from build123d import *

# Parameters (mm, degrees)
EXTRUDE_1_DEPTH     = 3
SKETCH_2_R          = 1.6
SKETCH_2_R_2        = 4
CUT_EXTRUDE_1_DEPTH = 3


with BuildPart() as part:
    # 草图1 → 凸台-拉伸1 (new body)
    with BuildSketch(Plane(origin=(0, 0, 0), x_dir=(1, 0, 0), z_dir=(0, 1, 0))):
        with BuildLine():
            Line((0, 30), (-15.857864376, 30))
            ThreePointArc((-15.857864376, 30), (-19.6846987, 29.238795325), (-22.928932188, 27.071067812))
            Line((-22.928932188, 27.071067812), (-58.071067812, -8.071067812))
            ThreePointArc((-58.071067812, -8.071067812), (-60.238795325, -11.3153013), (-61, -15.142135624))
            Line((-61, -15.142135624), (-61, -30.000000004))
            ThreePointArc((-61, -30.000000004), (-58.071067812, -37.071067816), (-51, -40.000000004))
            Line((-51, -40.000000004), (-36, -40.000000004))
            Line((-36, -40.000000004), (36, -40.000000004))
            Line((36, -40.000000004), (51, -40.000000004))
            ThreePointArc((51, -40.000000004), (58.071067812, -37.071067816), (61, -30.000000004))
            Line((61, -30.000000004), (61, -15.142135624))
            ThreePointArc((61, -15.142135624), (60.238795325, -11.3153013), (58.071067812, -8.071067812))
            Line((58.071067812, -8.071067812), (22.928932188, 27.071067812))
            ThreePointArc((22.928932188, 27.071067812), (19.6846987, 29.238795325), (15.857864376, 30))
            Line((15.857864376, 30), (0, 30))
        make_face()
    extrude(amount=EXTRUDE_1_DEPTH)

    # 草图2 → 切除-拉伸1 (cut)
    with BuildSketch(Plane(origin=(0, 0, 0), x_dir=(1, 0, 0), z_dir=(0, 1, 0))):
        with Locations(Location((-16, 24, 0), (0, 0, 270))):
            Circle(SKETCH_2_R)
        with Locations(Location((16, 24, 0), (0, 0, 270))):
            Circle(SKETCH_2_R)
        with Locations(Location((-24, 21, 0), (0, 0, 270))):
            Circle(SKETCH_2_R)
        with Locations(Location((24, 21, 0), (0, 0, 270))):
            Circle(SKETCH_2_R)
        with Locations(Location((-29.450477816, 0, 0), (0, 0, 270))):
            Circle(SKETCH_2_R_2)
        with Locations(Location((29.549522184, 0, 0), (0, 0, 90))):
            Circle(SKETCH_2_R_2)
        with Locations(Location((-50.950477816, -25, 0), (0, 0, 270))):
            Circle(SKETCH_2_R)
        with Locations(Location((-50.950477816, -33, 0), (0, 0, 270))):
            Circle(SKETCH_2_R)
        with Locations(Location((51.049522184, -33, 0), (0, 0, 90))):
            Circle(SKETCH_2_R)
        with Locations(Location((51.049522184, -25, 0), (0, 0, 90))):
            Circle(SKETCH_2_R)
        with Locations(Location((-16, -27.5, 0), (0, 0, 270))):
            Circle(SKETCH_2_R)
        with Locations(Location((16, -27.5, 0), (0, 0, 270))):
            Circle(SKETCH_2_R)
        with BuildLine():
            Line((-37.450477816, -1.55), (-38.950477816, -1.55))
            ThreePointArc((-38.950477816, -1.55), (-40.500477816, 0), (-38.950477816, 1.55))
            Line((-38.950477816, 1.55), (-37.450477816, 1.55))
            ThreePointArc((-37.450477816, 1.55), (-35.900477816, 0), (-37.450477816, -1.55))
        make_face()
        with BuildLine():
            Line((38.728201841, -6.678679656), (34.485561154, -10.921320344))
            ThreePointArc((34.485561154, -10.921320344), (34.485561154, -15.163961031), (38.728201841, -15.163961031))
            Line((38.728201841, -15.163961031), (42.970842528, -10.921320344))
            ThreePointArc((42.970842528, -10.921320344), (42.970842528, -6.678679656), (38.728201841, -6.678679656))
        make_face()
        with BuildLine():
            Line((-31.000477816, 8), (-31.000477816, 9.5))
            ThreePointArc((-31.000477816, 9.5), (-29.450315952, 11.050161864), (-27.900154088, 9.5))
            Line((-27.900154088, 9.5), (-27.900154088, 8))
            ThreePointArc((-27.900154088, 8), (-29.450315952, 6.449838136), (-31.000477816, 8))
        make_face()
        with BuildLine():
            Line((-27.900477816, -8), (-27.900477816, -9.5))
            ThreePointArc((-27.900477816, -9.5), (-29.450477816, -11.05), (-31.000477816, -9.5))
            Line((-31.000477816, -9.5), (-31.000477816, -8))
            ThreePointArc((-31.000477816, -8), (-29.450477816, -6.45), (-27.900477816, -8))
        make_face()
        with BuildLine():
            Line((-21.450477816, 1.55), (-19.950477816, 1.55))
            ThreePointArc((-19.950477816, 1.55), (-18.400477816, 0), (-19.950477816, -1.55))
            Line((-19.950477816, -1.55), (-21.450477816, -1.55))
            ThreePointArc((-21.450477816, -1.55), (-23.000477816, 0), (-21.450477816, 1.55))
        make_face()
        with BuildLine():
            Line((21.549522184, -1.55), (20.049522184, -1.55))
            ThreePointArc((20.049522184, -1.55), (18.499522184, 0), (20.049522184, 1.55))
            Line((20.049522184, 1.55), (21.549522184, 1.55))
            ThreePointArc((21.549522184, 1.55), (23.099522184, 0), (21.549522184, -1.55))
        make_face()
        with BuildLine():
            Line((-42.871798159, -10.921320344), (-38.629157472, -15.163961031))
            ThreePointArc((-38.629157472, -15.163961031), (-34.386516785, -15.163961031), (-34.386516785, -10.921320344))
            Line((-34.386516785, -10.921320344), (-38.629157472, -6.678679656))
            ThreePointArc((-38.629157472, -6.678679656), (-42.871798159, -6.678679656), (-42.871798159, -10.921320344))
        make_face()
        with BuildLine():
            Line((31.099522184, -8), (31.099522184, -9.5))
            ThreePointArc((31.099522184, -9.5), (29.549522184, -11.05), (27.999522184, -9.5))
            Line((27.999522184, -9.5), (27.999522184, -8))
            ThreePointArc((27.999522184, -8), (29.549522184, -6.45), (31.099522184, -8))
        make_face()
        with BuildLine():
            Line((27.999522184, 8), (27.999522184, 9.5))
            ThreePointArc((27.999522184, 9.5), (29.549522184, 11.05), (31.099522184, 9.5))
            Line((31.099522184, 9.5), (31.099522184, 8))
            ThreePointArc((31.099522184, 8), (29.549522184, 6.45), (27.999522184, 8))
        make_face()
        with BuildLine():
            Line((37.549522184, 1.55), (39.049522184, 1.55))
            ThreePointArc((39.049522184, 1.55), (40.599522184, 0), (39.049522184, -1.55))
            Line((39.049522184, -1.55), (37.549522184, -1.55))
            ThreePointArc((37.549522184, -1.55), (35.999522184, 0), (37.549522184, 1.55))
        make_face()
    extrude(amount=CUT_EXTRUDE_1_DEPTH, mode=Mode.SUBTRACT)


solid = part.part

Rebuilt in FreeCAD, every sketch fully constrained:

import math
import FreeCAD as App
import Part
import Sketcher

doc = App.newDocument("Part")
body = doc.addObject("PartDesign::Body", "Body")

# Sketch on XZ plane
sketch1 = doc.addObject("Sketcher::SketchObject", "Sketch")
body.addObject(sketch1)
sketch1.AttachmentSupport = (doc.XZ_Plane, [""])
sketch1.MapMode = "FlatFace"
sketch1.addGeometry([
    Part.ArcOfCircle(Part.Circle(App.Vector(-15.857864, -20, 0), App.Vector(0, 0, 1), 10), math.radians(-135), math.radians(-90)),  # 0
    Part.LineSegment(App.Vector(-22.928932, -27.071068, 0), App.Vector(-58.071068, 8.071068, 0)),  # 1
    Part.ArcOfCircle(Part.Circle(App.Vector(-51, 15.142136, 0), App.Vector(0, 0, 1), 10), math.radians(180), math.radians(225)),  # 2
    Part.LineSegment(App.Vector(-61, 15.142136, 0), App.Vector(-61, 30, 0)),  # 3
    Part.ArcOfCircle(Part.Circle(App.Vector(-51, 30, 0), App.Vector(0, 0, 1), 10), math.radians(90), math.radians(180)),  # 4
    Part.LineSegment(App.Vector(-51, 40, 0), App.Vector(51, 40, 0)),  # 5
    Part.ArcOfCircle(Part.Circle(App.Vector(51, 30, 0), App.Vector(0, 0, 1), 10), math.radians(0), math.radians(90)),  # 6
    Part.LineSegment(App.Vector(61, 30, 0), App.Vector(61, 15.142136, 0)),  # 7
    Part.ArcOfCircle(Part.Circle(App.Vector(51, 15.142136, 0), App.Vector(0, 0, 1), 10), math.radians(-45), math.radians(0)),  # 8
    Part.LineSegment(App.Vector(58.071068, 8.071068, 0), App.Vector(22.928932, -27.071068, 0)),  # 9
    Part.ArcOfCircle(Part.Circle(App.Vector(15.857864, -20, 0), App.Vector(0, 0, 1), 10), math.radians(-90), math.radians(-45)),  # 10
    Part.LineSegment(App.Vector(15.857864, -30, 0), App.Vector(-15.857864, -30, 0)),  # 11
], False)
sketch1.addConstraint([
    Sketcher.Constraint("Tangent", 0, 1, 1, 1),
    Sketcher.Constraint("Tangent", 1, 2, 2, 2),
    Sketcher.Constraint("Tangent", 2, 1, 3, 1),
    Sketcher.Constraint("Tangent", 3, 2, 4, 2),
    Sketcher.Constraint("Tangent", 4, 1, 5, 1),
    Sketcher.Constraint("Tangent", 5, 2, 6, 2),
    Sketcher.Constraint("Tangent", 6, 1, 7, 1),
    Sketcher.Constraint("Tangent", 7, 2, 8, 2),
    Sketcher.Constraint("Tangent", 8, 1, 9, 1),
    Sketcher.Constraint("Tangent", 9, 2, 10, 2),
    Sketcher.Constraint("Tangent", 10, 1, 11, 1),
    Sketcher.Constraint("Tangent", 11, 2, 0, 2),
    Sketcher.Constraint("Vertical", 3),
    Sketcher.Constraint("Horizontal", 5),
    Sketcher.Constraint("Vertical", 7),
    Sketcher.Constraint("Horizontal", 11),
    Sketcher.Constraint("Equal", 0, 2),
    Sketcher.Constraint("Equal", 2, 4),
    Sketcher.Constraint("Equal", 4, 6),
    Sketcher.Constraint("Equal", 6, 8),
    Sketcher.Constraint("Equal", 8, 10),
    Sketcher.Constraint("Symmetric", 2, 3, 8, 3, -2),
    Sketcher.Constraint("Perpendicular", 1, 9),
    Sketcher.Constraint("Horizontal", 1, 2, 8, 1),
    Sketcher.Constraint("Radius", 0, 10.0),
    Sketcher.Constraint("DistanceX", 5, 1, 5, 2, 102.0),
    Sketcher.Constraint("DistanceY", 0, 3, -1, 1, 20.0),
    Sketcher.Constraint("DistanceY", -1, 1, 4, 3, 30.0),
    Sketcher.Constraint("DistanceX", 11, 2, 11, 1, 31.715729),
])
pad1 = doc.addObject("PartDesign::Pad", "Pad")
body.addObject(pad1)
pad1.Profile = sketch1
pad1.Length = 3
pad1.Reversed = True

# Sketch on XZ plane
sketch2 = doc.addObject("Sketcher::SketchObject", "Sketch001")
body.addObject(sketch2)
sketch2.AttachmentSupport = (doc.XZ_Plane, [""])
sketch2.MapMode = "FlatFace"
sketch2.addGeometry([
    Part.Circle(App.Vector(-16, -24, 0), App.Vector(0, 0, 1), 1.6),  # 0
    Part.Circle(App.Vector(16, -24, 0), App.Vector(0, 0, 1), 1.6),  # 1
    Part.Circle(App.Vector(-24, -21, 0), App.Vector(0, 0, 1), 1.6),  # 2
    Part.Circle(App.Vector(24, -21, 0), App.Vector(0, 0, 1), 1.6),  # 3
    Part.Circle(App.Vector(-29.450478, 0, 0), App.Vector(0, 0, 1), 4),  # 4
    Part.Circle(App.Vector(29.549522, 0, 0), App.Vector(0, 0, 1), 4),  # 5
    Part.Circle(App.Vector(-50.950478, 25, 0), App.Vector(0, 0, 1), 1.6),  # 6
    Part.Circle(App.Vector(-50.950478, 33, 0), App.Vector(0, 0, 1), 1.6),  # 7
    Part.Circle(App.Vector(51.049522, 33, 0), App.Vector(0, 0, 1), 1.6),  # 8
    Part.Circle(App.Vector(51.049522, 25, 0), App.Vector(0, 0, 1), 1.6),  # 9
    Part.Circle(App.Vector(-16, 27.5, 0), App.Vector(0, 0, 1), 1.6),  # 10
    Part.Circle(App.Vector(16, 27.5, 0), App.Vector(0, 0, 1), 1.6),  # 11
    Part.LineSegment(App.Vector(-38.950478, 1.55, 0), App.Vector(-37.450478, 1.55, 0)),  # 12
    Part.ArcOfCircle(Part.Circle(App.Vector(-37.450478, 0, 0), App.Vector(0, 0, 1), 1.55), math.radians(-90), math.radians(90)),  # 13
    Part.LineSegment(App.Vector(-37.450478, -1.55, 0), App.Vector(-38.950478, -1.55, 0)),  # 14
    Part.ArcOfCircle(Part.Circle(App.Vector(-38.950478, 0, 0), App.Vector(0, 0, 1), 1.55), math.radians(90), math.radians(270)),  # 15
    Part.LineSegment(App.Vector(38.728202, 6.67868, 0), App.Vector(34.485561, 10.92132, 0)),  # 16
    Part.ArcOfCircle(Part.Circle(App.Vector(36.606881, 13.042641, 0), App.Vector(0, 0, 1), 3), math.radians(45), math.radians(225)),  # 17
    Part.LineSegment(App.Vector(38.728202, 15.163961, 0), App.Vector(42.970843, 10.92132, 0)),  # 18
    Part.ArcOfCircle(Part.Circle(App.Vector(40.849522, 8.8, 0), App.Vector(0, 0, 1), 3), math.radians(-135), math.radians(45)),  # 19
    Part.LineSegment(App.Vector(-31.000478, -9.5, 0), App.Vector(-31.000478, -8, 0)),  # 20
    Part.ArcOfCircle(Part.Circle(App.Vector(-29.450316, -8, 0), App.Vector(0, 0, 1), 1.550162), math.radians(0), math.radians(180)),  # 21
    Part.LineSegment(App.Vector(-27.900154, -8, 0), App.Vector(-27.900154, -9.5, 0)),  # 22
    Part.ArcOfCircle(Part.Circle(App.Vector(-29.450316, -9.5, 0), App.Vector(0, 0, 1), 1.550162), math.radians(180), math.radians(360)),  # 23
    Part.LineSegment(App.Vector(-27.900478, 9.5, 0), App.Vector(-27.900478, 8, 0)),  # 24
    Part.ArcOfCircle(Part.Circle(App.Vector(-29.450478, 8, 0), App.Vector(0, 0, 1), 1.55), math.radians(180), math.radians(360)),  # 25
    Part.LineSegment(App.Vector(-31.000478, 8, 0), App.Vector(-31.000478, 9.5, 0)),  # 26
    Part.ArcOfCircle(Part.Circle(App.Vector(-29.450478, 9.5, 0), App.Vector(0, 0, 1), 1.55), math.radians(0), math.radians(180)),  # 27
    Part.LineSegment(App.Vector(-19.950478, -1.55, 0), App.Vector(-21.450478, -1.55, 0)),  # 28
    Part.ArcOfCircle(Part.Circle(App.Vector(-21.450478, 0, 0), App.Vector(0, 0, 1), 1.55), math.radians(90), math.radians(270)),  # 29
    Part.LineSegment(App.Vector(-21.450478, 1.55, 0), App.Vector(-19.950478, 1.55, 0)),  # 30
    Part.ArcOfCircle(Part.Circle(App.Vector(-19.950478, 0, 0), App.Vector(0, 0, 1), 1.55), math.radians(-90), math.radians(90)),  # 31
    Part.LineSegment(App.Vector(20.049522, 1.55, 0), App.Vector(21.549522, 1.55, 0)),  # 32
    Part.ArcOfCircle(Part.Circle(App.Vector(21.549522, 0, 0), App.Vector(0, 0, 1), 1.55), math.radians(-90), math.radians(90)),  # 33
    Part.LineSegment(App.Vector(21.549522, -1.55, 0), App.Vector(20.049522, -1.55, 0)),  # 34
    Part.ArcOfCircle(Part.Circle(App.Vector(20.049522, 0, 0), App.Vector(0, 0, 1), 1.55), math.radians(90), math.radians(270)),  # 35
    Part.LineSegment(App.Vector(-42.871798, 10.92132, 0), App.Vector(-38.629157, 15.163961, 0)),  # 36
    Part.ArcOfCircle(Part.Circle(App.Vector(-36.507837, 13.042641, 0), App.Vector(0, 0, 1), 3), math.radians(-45), math.radians(135)),  # 37
    Part.LineSegment(App.Vector(-34.386517, 10.92132, 0), App.Vector(-38.629157, 6.67868, 0)),  # 38
    Part.ArcOfCircle(Part.Circle(App.Vector(-40.750478, 8.8, 0), App.Vector(0, 0, 1), 3), math.radians(135), math.radians(315)),  # 39
    Part.LineSegment(App.Vector(31.099522, 9.5, 0), App.Vector(31.099522, 8, 0)),  # 40
    Part.ArcOfCircle(Part.Circle(App.Vector(29.549522, 8, 0), App.Vector(0, 0, 1), 1.55), math.radians(180), math.radians(360)),  # 41
    Part.LineSegment(App.Vector(27.999522, 8, 0), App.Vector(27.999522, 9.5, 0)),  # 42
    Part.ArcOfCircle(Part.Circle(App.Vector(29.549522, 9.5, 0), App.Vector(0, 0, 1), 1.55), math.radians(0), math.radians(180)),  # 43
    Part.LineSegment(App.Vector(27.999522, -9.5, 0), App.Vector(27.999522, -8, 0)),  # 44
    Part.ArcOfCircle(Part.Circle(App.Vector(29.549522, -8, 0), App.Vector(0, 0, 1), 1.55), math.radians(0), math.radians(180)),  # 45
    Part.LineSegment(App.Vector(31.099522, -8, 0), App.Vector(31.099522, -9.5, 0)),  # 46
    Part.ArcOfCircle(Part.Circle(App.Vector(29.549522, -9.5, 0), App.Vector(0, 0, 1), 1.55), math.radians(180), math.radians(360)),  # 47
    Part.LineSegment(App.Vector(39.049522, -1.55, 0), App.Vector(37.549522, -1.55, 0)),  # 48
    Part.ArcOfCircle(Part.Circle(App.Vector(37.549522, 0, 0), App.Vector(0, 0, 1), 1.55), math.radians(90), math.radians(270)),  # 49
    Part.LineSegment(App.Vector(37.549522, 1.55, 0), App.Vector(39.049522, 1.55, 0)),  # 50
    Part.ArcOfCircle(Part.Circle(App.Vector(39.049522, 0, 0), App.Vector(0, 0, 1), 1.55), math.radians(-90), math.radians(90)),  # 51
], False)
sketch2.addConstraint([
    Sketcher.Constraint("Tangent", 12, 2, 13, 2),
    Sketcher.Constraint("Tangent", 13, 1, 14, 1),
    Sketcher.Constraint("Tangent", 14, 2, 15, 2),
    Sketcher.Constraint("Tangent", 15, 1, 12, 1),
    Sketcher.Constraint("Tangent", 16, 2, 17, 2),
    Sketcher.Constraint("Tangent", 17, 1, 18, 1),
    Sketcher.Constraint("Tangent", 18, 2, 19, 2),
    Sketcher.Constraint("Tangent", 19, 1, 16, 1),
    Sketcher.Constraint("Tangent", 20, 2, 21, 2),
    Sketcher.Constraint("Tangent", 21, 1, 22, 1),
    Sketcher.Constraint("Tangent", 22, 2, 23, 2),
    Sketcher.Constraint("Tangent", 23, 1, 20, 1),
    Sketcher.Constraint("Tangent", 24, 2, 25, 2),
    Sketcher.Constraint("Tangent", 25, 1, 26, 1),
    Sketcher.Constraint("Tangent", 26, 2, 27, 2),
    Sketcher.Constraint("Tangent", 27, 1, 24, 1),
    Sketcher.Constraint("Tangent", 28, 2, 29, 2),
    Sketcher.Constraint("Tangent", 29, 1, 30, 1),
    Sketcher.Constraint("Tangent", 30, 2, 31, 2),
    Sketcher.Constraint("Tangent", 31, 1, 28, 1),
    Sketcher.Constraint("Tangent", 32, 2, 33, 2),
    Sketcher.Constraint("Tangent", 33, 1, 34, 1),
    Sketcher.Constraint("Tangent", 34, 2, 35, 2),
    Sketcher.Constraint("Tangent", 35, 1, 32, 1),
    Sketcher.Constraint("Tangent", 36, 2, 37, 2),
    Sketcher.Constraint("Tangent", 37, 1, 38, 1),
    Sketcher.Constraint("Tangent", 38, 2, 39, 2),
    Sketcher.Constraint("Tangent", 39, 1, 36, 1),
    Sketcher.Constraint("Tangent", 40, 2, 41, 2),
    Sketcher.Constraint("Tangent", 41, 1, 42, 1),
    Sketcher.Constraint("Tangent", 42, 2, 43, 2),
    Sketcher.Constraint("Tangent", 43, 1, 40, 1),
    Sketcher.Constraint("Tangent", 44, 2, 45, 2),
    Sketcher.Constraint("Tangent", 45, 1, 46, 1),
    Sketcher.Constraint("Tangent", 46, 2, 47, 2),
    Sketcher.Constraint("Tangent", 47, 1, 44, 1),
    Sketcher.Constraint("Tangent", 48, 2, 49, 2),
    Sketcher.Constraint("Tangent", 49, 1, 50, 1),
    Sketcher.Constraint("Tangent", 50, 2, 51, 2),
    Sketcher.Constraint("Tangent", 51, 1, 48, 1),
    Sketcher.Constraint("Horizontal", 12),
    Sketcher.Constraint("Horizontal", 14),
    Sketcher.Constraint("Vertical", 20),
    Sketcher.Constraint("Vertical", 22),
    Sketcher.Constraint("Vertical", 24),
    Sketcher.Constraint("Vertical", 26),
    Sketcher.Constraint("Horizontal", 28),
    Sketcher.Constraint("Horizontal", 30),
    Sketcher.Constraint("Horizontal", 32),
    Sketcher.Constraint("Horizontal", 34),
    Sketcher.Constraint("Vertical", 40),
    Sketcher.Constraint("Vertical", 42),
    Sketcher.Constraint("Vertical", 44),
    Sketcher.Constraint("Vertical", 46),
    Sketcher.Constraint("Horizontal", 48),
    Sketcher.Constraint("Horizontal", 50),
    Sketcher.Constraint("Equal", 0, 1),
    Sketcher.Constraint("Equal", 1, 2),
    Sketcher.Constraint("Equal", 2, 3),
    Sketcher.Constraint("Equal", 4, 5),
    Sketcher.Constraint("Equal", 3, 6),
    Sketcher.Constraint("Equal", 6, 7),
    Sketcher.Constraint("Equal", 7, 8),
    Sketcher.Constraint("Equal", 8, 9),
    Sketcher.Constraint("Equal", 9, 10),
    Sketcher.Constraint("Equal", 10, 11),
    Sketcher.Constraint("Equal", 17, 19),
    Sketcher.Constraint("Equal", 15, 25),
    Sketcher.Constraint("Equal", 27, 29),
    Sketcher.Constraint("Equal", 31, 33),
    Sketcher.Constraint("Equal", 19, 37),
    Sketcher.Constraint("Equal", 37, 39),
    Sketcher.Constraint("Equal", 35, 41),
    Sketcher.Constraint("Equal", 43, 45),
    Sketcher.Constraint("Equal", 47, 49),
    Sketcher.Constraint("Symmetric", 0, 3, 1, 3, -2),
    Sketcher.Constraint("Symmetric", 2, 3, 3, 3, -2),
    Sketcher.Constraint("Symmetric", 10, 3, 11, 3, -2),
    Sketcher.Constraint("Symmetric", 41, 3, 45, 3, -1),
    Sketcher.Constraint("Symmetric", 20, 2, 25, 1, -1),
    Sketcher.Constraint("PointOnObject", 4, 3, -1),
    Sketcher.Constraint("PointOnObject", 5, 3, -1),
    Sketcher.Constraint("PointOnObject", 13, 3, -1),
    Sketcher.Constraint("PointOnObject", 29, 3, -1),
    Sketcher.Constraint("PointOnObject", 33, 3, -1),
    Sketcher.Constraint("PointOnObject", 49, 3, -1),
    Sketcher.Constraint("Perpendicular", 18, 36),
    Sketcher.Constraint("Horizontal", 7, 3, 8, 3),
    Sketcher.Constraint("Horizontal", 6, 3, 9, 3),
    Sketcher.Constraint("Horizontal", 17, 3, 37, 3),
    Sketcher.Constraint("Horizontal", 19, 3, 39, 3),
    Sketcher.Constraint("Horizontal", 25, 3, 41, 3),
    Sketcher.Constraint("Horizontal", 27, 3, 43, 3),
    Sketcher.Constraint("Horizontal", 23, 3, 47, 3),
    Sketcher.Constraint("Horizontal", 16, 2, 18, 2),
    Sketcher.Constraint("Horizontal", 17, 1, 36, 2),
    Sketcher.Constraint("Vertical", 6, 3, 7, 3),
    Sketcher.Constraint("Vertical", 8, 3, 9, 3),
    Sketcher.Constraint("Vertical", 0, 3, 10, 3),
    Sketcher.Constraint("Vertical", 4, 3, 25, 3),
    Sketcher.Constraint("Vertical", 5, 3, 41, 3),
    Sketcher.Constraint("Equal", 14, 28),
    Sketcher.Constraint("Equal", 30, 32),
    Sketcher.Constraint("Equal", 34, 48),
    Sketcher.Constraint("Equal", 50, 20),
    Sketcher.Constraint("Equal", 22, 24),
    Sketcher.Constraint("Diameter", 4, 8.0),
    Sketcher.Constraint("Radius", 17, 3.0),
    Sketcher.Constraint("Diameter", 0, 3.2),
    Sketcher.Constraint("Radius", 13, 1.55),
    Sketcher.Constraint("DistanceX", 12, 1, 12, 2, 1.5),
    Sketcher.Constraint("DistanceX", 0, 3, -1, 1, 16.0),
    Sketcher.Constraint("DistanceY", 0, 3, -1, 1, 24.0),
    Sketcher.Constraint("DistanceX", 2, 3, -1, 1, 24.0),
    Sketcher.Constraint("DistanceY", 2, 3, -1, 1, 21.0),
    Sketcher.Constraint("DistanceY", -1, 1, 6, 3, 25.0),
    Sketcher.Constraint("DistanceY", -1, 1, 7, 3, 33.0),
    Sketcher.Constraint("DistanceY", 21, 3, -1, 1, 8.0),
    Sketcher.Constraint("DistanceY", -1, 1, 10, 3, 27.5),
    Sketcher.Constraint("DistanceY", -1, 1, 19, 3, 8.8),
    Sketcher.Constraint("Radius", 21, 1.550162),
    Sketcher.Constraint("DistanceX", -1, 1, 17, 1, 38.728202),
    Sketcher.Constraint("DistanceX", 39, 1, -1, 1, 42.871798),
    Sketcher.Constraint("DistanceX", 4, 3, -1, 1, 29.450478),
    Sketcher.Constraint("DistanceX", -1, 1, 5, 3, 29.549522),
    Sketcher.Constraint("DistanceX", 6, 3, -1, 1, 50.950478),
    Sketcher.Constraint("DistanceX", -1, 1, 8, 3, 51.049522),
    Sketcher.Constraint("DistanceX", 13, 3, -1, 1, 37.450478),
    Sketcher.Constraint("DistanceX", 29, 3, -1, 1, 21.450478),
    Sketcher.Constraint("DistanceX", -1, 1, 33, 3, 21.549522),
    Sketcher.Constraint("DistanceX", -1, 1, 49, 3, 37.549522),
])
pocket1 = doc.addObject("PartDesign::Pocket", "Pocket")
body.addObject(pocket1)
pocket1.Profile = sketch2
pocket1.Length = 3

doc.recompute()
